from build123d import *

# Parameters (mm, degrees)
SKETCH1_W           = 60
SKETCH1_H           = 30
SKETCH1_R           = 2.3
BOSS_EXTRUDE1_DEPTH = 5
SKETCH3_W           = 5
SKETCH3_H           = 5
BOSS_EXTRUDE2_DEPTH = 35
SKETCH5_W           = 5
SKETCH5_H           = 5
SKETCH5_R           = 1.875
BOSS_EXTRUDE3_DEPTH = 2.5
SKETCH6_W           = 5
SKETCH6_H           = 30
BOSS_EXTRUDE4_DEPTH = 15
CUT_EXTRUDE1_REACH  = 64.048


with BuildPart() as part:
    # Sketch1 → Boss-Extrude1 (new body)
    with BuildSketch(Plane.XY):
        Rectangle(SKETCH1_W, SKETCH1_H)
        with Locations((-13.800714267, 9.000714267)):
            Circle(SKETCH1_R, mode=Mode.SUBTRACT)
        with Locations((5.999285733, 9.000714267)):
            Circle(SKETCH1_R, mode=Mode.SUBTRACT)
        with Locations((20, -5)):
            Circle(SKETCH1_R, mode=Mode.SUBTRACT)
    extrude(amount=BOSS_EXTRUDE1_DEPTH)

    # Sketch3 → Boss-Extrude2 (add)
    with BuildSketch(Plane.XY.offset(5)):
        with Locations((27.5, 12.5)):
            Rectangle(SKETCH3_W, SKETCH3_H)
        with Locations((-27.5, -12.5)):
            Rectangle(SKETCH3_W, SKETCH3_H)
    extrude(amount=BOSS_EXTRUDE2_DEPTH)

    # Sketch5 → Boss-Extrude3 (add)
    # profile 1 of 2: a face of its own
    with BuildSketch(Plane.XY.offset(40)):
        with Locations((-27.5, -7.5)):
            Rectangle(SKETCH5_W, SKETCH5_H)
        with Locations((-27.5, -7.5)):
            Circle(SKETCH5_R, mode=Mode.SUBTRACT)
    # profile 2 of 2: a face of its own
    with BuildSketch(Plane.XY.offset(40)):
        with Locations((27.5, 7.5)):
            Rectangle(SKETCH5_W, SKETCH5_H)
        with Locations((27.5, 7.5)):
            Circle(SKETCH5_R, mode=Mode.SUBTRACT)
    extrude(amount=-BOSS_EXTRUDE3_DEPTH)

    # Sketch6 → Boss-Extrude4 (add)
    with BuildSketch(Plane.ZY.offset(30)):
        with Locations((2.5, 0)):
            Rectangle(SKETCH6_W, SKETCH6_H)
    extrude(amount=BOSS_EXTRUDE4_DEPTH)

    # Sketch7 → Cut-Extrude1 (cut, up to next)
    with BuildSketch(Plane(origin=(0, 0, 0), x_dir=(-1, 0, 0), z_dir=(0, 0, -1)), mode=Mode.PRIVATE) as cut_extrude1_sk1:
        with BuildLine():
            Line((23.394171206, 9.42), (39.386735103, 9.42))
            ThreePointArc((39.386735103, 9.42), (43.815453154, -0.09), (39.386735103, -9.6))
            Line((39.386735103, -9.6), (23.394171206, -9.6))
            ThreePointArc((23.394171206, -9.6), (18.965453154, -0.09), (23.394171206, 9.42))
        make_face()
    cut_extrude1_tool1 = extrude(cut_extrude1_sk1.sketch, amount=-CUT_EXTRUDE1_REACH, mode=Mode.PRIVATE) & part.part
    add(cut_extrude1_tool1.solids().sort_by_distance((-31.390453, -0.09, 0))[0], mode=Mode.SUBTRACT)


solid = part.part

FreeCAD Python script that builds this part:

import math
import FreeCAD as App
import Part
import Sketcher

V = App.Vector


def add_polygon(sketch, points):
    """Adds a closed chain of lines whose ends are joined by coincident constraints."""
    first, n = sketch.GeometryCount, len(points)
    for a, b in zip(points, points[1:] + points[:1]):
        sketch.addGeometry(Part.LineSegment(App.Vector(*a, 0), App.Vector(*b, 0)), False)
    for i in range(n):
        sketch.addConstraint(Sketcher.Constraint("Coincident", first + i, 2, first + (i + 1) % n, 1))

doc = App.newDocument("Part")
body = doc.addObject("PartDesign::Body", "Body")

sketch1 = doc.addObject("Sketcher::SketchObject", "Sketch")
body.addObject(sketch1)
sketch1.AttachmentSupport = (doc.XY_Plane, [""])
sketch1.MapMode = "FlatFace"
add_polygon(sketch1, [(-30, 15), (-30, -15), (30, -15), (30, 15)])
sketch1.addGeometry(Part.Circle(V(20, -5, 0), V(0, 0, 1), 2.3), False)
sketch1.addGeometry(Part.Circle(V(-13.8, 9, 0), V(0, 0, 1), 2.3), False)
sketch1.addGeometry(Part.Circle(V(6, 9, 0), V(0, 0, 1), 2.3), False)
sketch1.addConstraint([
    Sketcher.Constraint("Vertical", 0),
    Sketcher.Constraint("Horizontal", 1),
    Sketcher.Constraint("Vertical", 2),
    Sketcher.Constraint("Horizontal", 3),
    Sketcher.Constraint("Equal", 4, 5),
    Sketcher.Constraint("Equal", 5, 6),
    Sketcher.Constraint("Symmetric", 0, 2, 2, 2, -1, 1),
    Sketcher.Constraint("Horizontal", 5, 3, 6, 3),
    Sketcher.Constraint("Diameter", 4, 4.6),
    Sketcher.Constraint("DistanceX", 1, 1, 1, 2, 60.0),
    Sketcher.Constraint("DistanceY", 0, 2, 0, 1, 30.0),
    Sketcher.Constraint("DistanceX", -1, 1, 4, 3, 20.0),
    Sketcher.Constraint("DistanceY", 4, 3, -1, 1, 5.0),
    Sketcher.Constraint("DistanceX", 5, 3, 6, 3, 19.8),
    Sketcher.Constraint("DistanceX", 5, 3, -1, 1, 13.800714),
    Sketcher.Constraint("DistanceY", -1, 1, 5, 3, 9.000714),
])
pad1 = doc.addObject("PartDesign::Pad", "Pad")
body.addObject(pad1)
pad1.Profile = sketch1
pad1.Length = 5

sketch2 = doc.addObject("Sketcher::SketchObject", "Sketch001")
body.addObject(sketch2)
sketch2.AttachmentSupport = (doc.XY_Plane, [""])
sketch2.MapMode = "FlatFace"
sketch2.AttachmentOffset = App.Placement(V(0, 0, 5), App.Rotation())
add_polygon(sketch2, [(25, 15), (25, 10), (30, 10), (30, 15)])
add_polygon(sketch2, [(-30, -10), (-30, -15), (-25, -15), (-25, -10)])
sketch2.addConstraint([
    Sketcher.Constraint("Vertical", 0),
    Sketcher.Constraint("Horizontal", 1),
    Sketcher.Constraint("Vertical", 2),
    Sketcher.Constraint("Horizontal", 3),
    Sketcher.Constraint("Vertical", 4),
    Sketcher.Constraint("Horizontal", 5),
    Sketcher.Constraint("Vertical", 6),
    Sketcher.Constraint("Horizontal", 7),
    Sketcher.Constraint("Symmetric", 2, 2, 4, 2, -1, 1),
    Sketcher.Constraint("Symmetric", 0, 2, 6, 2, -1, 1),
    Sketcher.Constraint("Equal", 7, 0),
    Sketcher.Constraint("DistanceX", 1, 1, 1, 2, 5.0),
    Sketcher.Constraint("DistanceX", -1, 1, 0, 2, 25.0),
    Sketcher.Constraint("DistanceY", -1, 1, 0, 2, 10.0),
])
pad2 = doc.addObject("PartDesign::Pad", "Pad001")
body.addObject(pad2)
pad2.Profile = sketch2
pad2.Length = 35

sketch3 = doc.addObject("Sketcher::SketchObject", "Sketch002")
body.addObject(sketch3)
sketch3.AttachmentSupport = (doc.XY_Plane, [""])
sketch3.MapMode = "FlatFace"
sketch3.AttachmentOffset = App.Placement(V(0, 0, 40), App.Rotation())
add_polygon(sketch3, [(-30, -5), (-30, -10), (-25, -10), (-25, -5)])
sketch3.addGeometry(Part.Circle(V(-27.5, -7.5, 0), V(0, 0, 1), 1.9), False)
add_polygon(sketch3, [(25, 10), (25, 5), (30, 5), (30, 10)])
sketch3.addGeometry(Part.Circle(V(27.5, 7.5, 0), V(0, 0, 1), 1.9), False)
sketch3.addConstraint([
    Sketcher.Constraint("Vertical", 0),
    Sketcher.Constraint("Horizontal", 1),
    Sketcher.Constraint("Vertical", 2),
    Sketcher.Constraint("Horizontal", 3),
    Sketcher.Constraint("Vertical", 5),
    Sketcher.Constraint("Horizontal", 6),
    Sketcher.Constraint("Vertical", 7),
    Sketcher.Constraint("Horizontal", 8),
    Sketcher.Constraint("Equal", 4, 9),
    Sketcher.Constraint("Symmetric", 4, 3, 9, 3, -1, 1),
    Sketcher.Constraint("Symmetric", 2, 2, 5, 2, -1, 1),
    Sketcher.Constraint("Symmetric", 0, 2, 7, 2, -1, 1),
    Sketcher.Constraint("Equal", 8, 0),
    Sketcher.Constraint("Diameter", 4, 3.75),
    Sketcher.Constraint("DistanceX", 1, 1, 1, 2, 5.0),
    Sketcher.Constraint("DistanceX", 0, 2, -1, 1, 30.0),
    Sketcher.Constraint("DistanceY", 0, 2, -1, 1, 10.0),
    Sketcher.Constraint("DistanceX", 4, 3, 9, 3, 55.0),
    Sketcher.Constraint("DistanceY", 4, 3, 9, 3, 15.0),
])
pad3 = doc.addObject("PartDesign::Pad", "Pad002")
body.addObject(pad3)
pad3.Profile = sketch3
pad3.Length = 2.5
pad3.Reversed = True

sketch4 = doc.addObject("Sketcher::SketchObject", "Sketch003")
body.addObject(sketch4)
sketch4.AttachmentSupport = (doc.YZ_Plane, [""])
sketch4.MapMode = "FlatFace"
sketch4.AttachmentOffset = App.Placement(V(0, 0, -30), App.Rotation())
add_polygon(sketch4, [(15, 0), (-15, 0), (-15, 5), (15, 5)])
sketch4.addConstraint([
    Sketcher.Constraint("Horizontal", 0),
    Sketcher.Constraint("Vertical", 1),
    Sketcher.Constraint("Horizontal", 2),
    Sketcher.Constraint("Vertical", 3),
    Sketcher.Constraint("Symmetric", 0, 2, 3, 2, -1, 1),
    Sketcher.Constraint("DistanceX", 0, 2, 0, 1, 30.0),
    Sketcher.Constraint("DistanceY", 1, 1, 1, 2, 5.0),
])
pad4 = doc.addObject("PartDesign::Pad", "Pad003")
body.addObject(pad4)
pad4.Profile = sketch4
pad4.Length = 15
pad4.Reversed = True

sketch5 = doc.addObject("Sketcher::SketchObject", "Sketch004")
body.addObject(sketch5)
sketch5.AttachmentSupport = (doc.XY_Plane, [""])
sketch5.MapMode = "FlatFace"
sketch5.addGeometry([
    Part.LineSegment(V(-39, 9, 0), V(-23, 9, 0)),
    Part.ArcOfCircle(Part.Circle(V(-31, 0, 0), V(0, 0, 1), 12), math.radians(-50), math.radians(50)),
    Part.LineSegment(V(-23, -10, 0), V(-39, -10, 0)),
    Part.ArcOfCircle(Part.Circle(V(-31, 0, 0), V(0, 0, 1), 12), math.radians(130), math.radians(230)),
], False)
sketch5.addConstraint([
    Sketcher.Constraint("Coincident", 0, 2, 1, 2),
    Sketcher.Constraint("Coincident", 1, 1, 2, 1),
    Sketcher.Constraint("Coincident", 2, 2, 3, 2),
    Sketcher.Constraint("Coincident", 3, 1, 0, 1),
    Sketcher.Constraint("Horizontal", 0),
    Sketcher.Constraint("Horizontal", 2),
    Sketcher.Constraint("Coincident", 3, 3, 1, 3),
    Sketcher.Constraint("Equal", 1, 3),
    Sketcher.Constraint("Vertical", 0, 2, 1, 1),
    Sketcher.Constraint("Radius", 1, 12.425),
    Sketcher.Constraint("DistanceY", 1, 1, -1, 1, 9.6),
    Sketcher.Constraint("DistanceY", 1, 3, -1, 1, 0.09),
    Sketcher.Constraint("DistanceX", 0, 2, -1, 1, 23.394171),
])
pocket1 = doc.addObject("PartDesign::Pocket", "Pocket")
body.addObject(pocket1)
pocket1.Profile = sketch5
pocket1.Type = "UpToFirst"
pocket1.Reversed = True

doc.recompute()
